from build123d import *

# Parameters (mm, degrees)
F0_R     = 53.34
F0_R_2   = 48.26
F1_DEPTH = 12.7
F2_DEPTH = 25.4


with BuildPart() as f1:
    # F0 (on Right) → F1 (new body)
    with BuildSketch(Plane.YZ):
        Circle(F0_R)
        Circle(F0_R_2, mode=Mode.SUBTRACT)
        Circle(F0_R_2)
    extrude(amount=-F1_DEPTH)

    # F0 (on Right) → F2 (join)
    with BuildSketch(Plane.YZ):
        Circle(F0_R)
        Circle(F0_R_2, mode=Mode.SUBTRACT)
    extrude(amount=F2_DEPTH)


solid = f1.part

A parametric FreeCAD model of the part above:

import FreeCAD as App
import Part
import Sketcher
Q = App.Units.Quantity

doc = App.newDocument("Part")
body = doc.addObject("PartDesign::Body", "Body")

# Sketch on YZ plane
sketch1 = body.newObject("Sketcher::SketchObject", "Sketch")
sketch1.AttachmentSupport = (doc.getObject("YZ_Plane"), [""])
sketch1.MapMode = "FlatFace"
sketch1.addGeometry(Part.Circle(App.Vector(0, 0, 0), App.Vector(0, 0, 1), 53), False)
sketch1.addConstraint([
    Sketcher.Constraint("Coincident", 0, 3, -1, 1),
    Sketcher.Constraint("Diameter", 0, Q("4.2 in")),
])
pad1 = body.newObject("PartDesign::Pad", "Pad")
pad1.Profile = sketch1
pad1.Length = Q("0.5 in")
pad1.Reversed = True

# Sketch on YZ plane
sketch2 = body.newObject("Sketcher::SketchObject", "Sketch001")
sketch2.AttachmentSupport = (doc.getObject("YZ_Plane"), [""])
sketch2.MapMode = "FlatFace"
sketch2.addGeometry([
    Part.Circle(App.Vector(0, 0, 0), App.Vector(0, 0, 1), 53),
    Part.Circle(App.Vector(0, 0, 0), App.Vector(0, 0, 1), 48),
], False)
sketch2.addConstraint([
    Sketcher.Constraint("Coincident", 0, 3, -1, 1),
    Sketcher.Constraint("Coincident", 1, 3, -1, 1),
    Sketcher.Constraint("Diameter", 0, Q("4.2 in")),
    Sketcher.Constraint("Diameter", 1, Q("3.8 in")),
])
pad2 = body.newObject("PartDesign::Pad", "Pad001")
pad2.Profile = sketch2
pad2.Length = Q("1 in")

doc.recompute()
